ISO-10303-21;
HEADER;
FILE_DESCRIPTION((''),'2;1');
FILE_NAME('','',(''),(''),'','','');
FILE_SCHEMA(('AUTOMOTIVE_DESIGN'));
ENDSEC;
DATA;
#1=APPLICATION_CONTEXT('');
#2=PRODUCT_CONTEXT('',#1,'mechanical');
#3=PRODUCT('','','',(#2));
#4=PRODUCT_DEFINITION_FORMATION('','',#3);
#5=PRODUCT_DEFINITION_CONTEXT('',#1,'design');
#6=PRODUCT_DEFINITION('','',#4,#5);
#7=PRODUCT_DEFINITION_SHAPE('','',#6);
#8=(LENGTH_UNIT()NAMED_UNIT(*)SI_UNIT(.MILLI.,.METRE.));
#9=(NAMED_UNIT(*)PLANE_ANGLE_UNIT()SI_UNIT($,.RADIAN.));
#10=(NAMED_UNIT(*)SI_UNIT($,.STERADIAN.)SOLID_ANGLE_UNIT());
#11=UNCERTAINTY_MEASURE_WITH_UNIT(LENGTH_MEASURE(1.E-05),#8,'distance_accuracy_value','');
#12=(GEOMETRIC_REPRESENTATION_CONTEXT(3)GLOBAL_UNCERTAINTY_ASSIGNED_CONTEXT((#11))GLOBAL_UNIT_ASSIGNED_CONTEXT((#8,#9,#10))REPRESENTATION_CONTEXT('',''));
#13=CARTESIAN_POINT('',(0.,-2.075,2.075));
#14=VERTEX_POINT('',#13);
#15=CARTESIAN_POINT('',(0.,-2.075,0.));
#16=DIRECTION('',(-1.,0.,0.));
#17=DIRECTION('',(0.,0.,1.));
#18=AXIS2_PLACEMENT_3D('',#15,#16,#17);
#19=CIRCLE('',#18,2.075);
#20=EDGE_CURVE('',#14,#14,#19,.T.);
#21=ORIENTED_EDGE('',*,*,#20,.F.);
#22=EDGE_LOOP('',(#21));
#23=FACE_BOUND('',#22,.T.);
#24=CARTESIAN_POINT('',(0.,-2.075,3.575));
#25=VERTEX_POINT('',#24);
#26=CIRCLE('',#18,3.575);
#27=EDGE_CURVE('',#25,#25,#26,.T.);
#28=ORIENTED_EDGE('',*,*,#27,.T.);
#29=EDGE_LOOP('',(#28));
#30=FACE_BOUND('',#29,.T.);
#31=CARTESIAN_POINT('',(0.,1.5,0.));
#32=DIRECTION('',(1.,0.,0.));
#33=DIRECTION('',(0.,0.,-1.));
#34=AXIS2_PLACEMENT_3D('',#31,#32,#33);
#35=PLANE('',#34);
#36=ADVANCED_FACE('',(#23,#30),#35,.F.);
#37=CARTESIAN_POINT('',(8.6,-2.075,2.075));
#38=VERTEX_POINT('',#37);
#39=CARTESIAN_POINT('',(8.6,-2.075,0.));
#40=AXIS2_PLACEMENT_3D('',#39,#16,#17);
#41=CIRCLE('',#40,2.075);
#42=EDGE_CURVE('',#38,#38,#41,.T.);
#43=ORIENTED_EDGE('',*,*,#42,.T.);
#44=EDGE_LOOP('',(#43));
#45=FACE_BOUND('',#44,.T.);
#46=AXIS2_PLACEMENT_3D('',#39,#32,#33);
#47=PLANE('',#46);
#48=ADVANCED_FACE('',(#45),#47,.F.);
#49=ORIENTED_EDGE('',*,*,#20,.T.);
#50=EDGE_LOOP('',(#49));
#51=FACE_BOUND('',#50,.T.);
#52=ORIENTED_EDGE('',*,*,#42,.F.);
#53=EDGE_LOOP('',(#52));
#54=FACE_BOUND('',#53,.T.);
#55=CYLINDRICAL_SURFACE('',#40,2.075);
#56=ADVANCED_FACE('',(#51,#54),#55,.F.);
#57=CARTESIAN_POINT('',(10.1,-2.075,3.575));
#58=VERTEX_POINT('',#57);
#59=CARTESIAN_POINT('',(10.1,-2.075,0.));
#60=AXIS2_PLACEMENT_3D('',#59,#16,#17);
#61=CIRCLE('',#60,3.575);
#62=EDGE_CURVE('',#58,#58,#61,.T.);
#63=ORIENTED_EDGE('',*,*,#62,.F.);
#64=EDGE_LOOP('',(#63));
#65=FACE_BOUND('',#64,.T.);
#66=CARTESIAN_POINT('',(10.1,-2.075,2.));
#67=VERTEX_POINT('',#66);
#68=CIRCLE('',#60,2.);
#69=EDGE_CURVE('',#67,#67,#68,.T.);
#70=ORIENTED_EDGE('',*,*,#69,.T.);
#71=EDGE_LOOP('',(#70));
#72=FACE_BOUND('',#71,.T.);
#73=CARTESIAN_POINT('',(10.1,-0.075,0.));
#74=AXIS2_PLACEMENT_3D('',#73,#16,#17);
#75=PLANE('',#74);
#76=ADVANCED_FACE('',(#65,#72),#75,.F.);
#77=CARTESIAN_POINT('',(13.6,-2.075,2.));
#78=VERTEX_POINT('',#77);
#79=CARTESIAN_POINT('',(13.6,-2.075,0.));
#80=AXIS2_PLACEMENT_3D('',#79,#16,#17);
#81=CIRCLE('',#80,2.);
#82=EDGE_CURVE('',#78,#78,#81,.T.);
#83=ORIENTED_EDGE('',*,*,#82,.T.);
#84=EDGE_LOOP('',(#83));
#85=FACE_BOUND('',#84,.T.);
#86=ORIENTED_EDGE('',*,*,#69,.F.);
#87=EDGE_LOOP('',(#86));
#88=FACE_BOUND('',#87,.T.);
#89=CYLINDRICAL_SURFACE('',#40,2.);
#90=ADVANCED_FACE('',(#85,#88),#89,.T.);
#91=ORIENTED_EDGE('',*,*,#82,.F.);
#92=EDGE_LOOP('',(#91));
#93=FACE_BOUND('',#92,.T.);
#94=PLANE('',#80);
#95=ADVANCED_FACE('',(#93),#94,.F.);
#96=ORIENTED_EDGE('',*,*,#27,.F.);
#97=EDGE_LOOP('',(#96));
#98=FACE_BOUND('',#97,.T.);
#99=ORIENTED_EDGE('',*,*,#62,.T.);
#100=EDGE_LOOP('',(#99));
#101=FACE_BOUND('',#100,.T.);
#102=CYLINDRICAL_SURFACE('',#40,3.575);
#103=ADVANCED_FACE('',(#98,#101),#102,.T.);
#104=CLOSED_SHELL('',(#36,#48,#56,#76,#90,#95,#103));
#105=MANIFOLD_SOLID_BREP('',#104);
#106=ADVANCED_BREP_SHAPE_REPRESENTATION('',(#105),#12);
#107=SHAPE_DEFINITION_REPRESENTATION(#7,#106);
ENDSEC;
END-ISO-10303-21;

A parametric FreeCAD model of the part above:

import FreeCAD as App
import Part
import Sketcher

V = App.Vector


def add_polygon(sketch, points):
    """Adds a closed chain of lines whose ends are joined by coincident constraints."""
    first, n = sketch.GeometryCount, len(points)
    for a, b in zip(points, points[1:] + points[:1]):
        sketch.addGeometry(Part.LineSegment(App.Vector(*a, 0), App.Vector(*b, 0)), False)
    for i in range(n):
        sketch.addConstraint(Sketcher.Constraint("Coincident", first + i, 2, first + (i + 1) % n, 1))

doc = App.newDocument("Part")
body = doc.addObject("PartDesign::Body", "Body")

# Sketch on XY plane
sketch1 = body.newObject("Sketcher::SketchObject", "Sketch")
sketch1.AttachmentSupport = (doc.getObject("XY_Plane"), [""])
sketch1.MapMode = "FlatFace"
add_polygon(sketch1, [(0, 1.5), (0, 0), (8.6, 0), (8.6, -2.075), (13.6, -2.075), (13.6, -0.075), (10.1, -0.075), (10.1, 1.5)])  # lines 0-7
sketch1.addGeometry(Part.LineSegment(V(0, -2.075, 0), V(13.6, -2.075, 0)), True)  # axis
sketch1.addConstraint([
    Sketcher.Constraint("Vertical", 0),
    Sketcher.Constraint("Horizontal", 1),
    Sketcher.Constraint("Vertical", 2),
    Sketcher.Constraint("Horizontal", 3),
    Sketcher.Constraint("Vertical", 4),
    Sketcher.Constraint("Horizontal", 5),
    Sketcher.Constraint("Vertical", 6),
    Sketcher.Constraint("Horizontal", 7),
    Sketcher.Constraint("Horizontal", 8),
    Sketcher.Constraint("Coincident", 0, 2, -1, 1),
    Sketcher.Constraint("Coincident", 8, 2, 3, 2),
    Sketcher.Constraint("PointOnObject", 8, 1, -2),
    Sketcher.Constraint("DistanceX", 3, 1, 3, 2, 5.0),
    Sketcher.Constraint("DistanceY", 4, 1, 4, 2, 2.0),
    Sketcher.Constraint("DistanceX", 1, 1, 1, 2, 8.6),
    Sketcher.Constraint("DistanceX", 5, 2, 5, 1, 3.5),
    Sketcher.Constraint("DistanceY", 0, 2, 0, 1, 1.5),
    Sketcher.Constraint("DistanceY", 2, 2, 2, 1, 2.075),
])
revolution = body.newObject("PartDesign::Revolution", "Revolution")
revolution.Profile = sketch1
revolution.ReferenceAxis = (sketch1, ["Axis0"])
revolution.Angle = 360

doc.recompute()
